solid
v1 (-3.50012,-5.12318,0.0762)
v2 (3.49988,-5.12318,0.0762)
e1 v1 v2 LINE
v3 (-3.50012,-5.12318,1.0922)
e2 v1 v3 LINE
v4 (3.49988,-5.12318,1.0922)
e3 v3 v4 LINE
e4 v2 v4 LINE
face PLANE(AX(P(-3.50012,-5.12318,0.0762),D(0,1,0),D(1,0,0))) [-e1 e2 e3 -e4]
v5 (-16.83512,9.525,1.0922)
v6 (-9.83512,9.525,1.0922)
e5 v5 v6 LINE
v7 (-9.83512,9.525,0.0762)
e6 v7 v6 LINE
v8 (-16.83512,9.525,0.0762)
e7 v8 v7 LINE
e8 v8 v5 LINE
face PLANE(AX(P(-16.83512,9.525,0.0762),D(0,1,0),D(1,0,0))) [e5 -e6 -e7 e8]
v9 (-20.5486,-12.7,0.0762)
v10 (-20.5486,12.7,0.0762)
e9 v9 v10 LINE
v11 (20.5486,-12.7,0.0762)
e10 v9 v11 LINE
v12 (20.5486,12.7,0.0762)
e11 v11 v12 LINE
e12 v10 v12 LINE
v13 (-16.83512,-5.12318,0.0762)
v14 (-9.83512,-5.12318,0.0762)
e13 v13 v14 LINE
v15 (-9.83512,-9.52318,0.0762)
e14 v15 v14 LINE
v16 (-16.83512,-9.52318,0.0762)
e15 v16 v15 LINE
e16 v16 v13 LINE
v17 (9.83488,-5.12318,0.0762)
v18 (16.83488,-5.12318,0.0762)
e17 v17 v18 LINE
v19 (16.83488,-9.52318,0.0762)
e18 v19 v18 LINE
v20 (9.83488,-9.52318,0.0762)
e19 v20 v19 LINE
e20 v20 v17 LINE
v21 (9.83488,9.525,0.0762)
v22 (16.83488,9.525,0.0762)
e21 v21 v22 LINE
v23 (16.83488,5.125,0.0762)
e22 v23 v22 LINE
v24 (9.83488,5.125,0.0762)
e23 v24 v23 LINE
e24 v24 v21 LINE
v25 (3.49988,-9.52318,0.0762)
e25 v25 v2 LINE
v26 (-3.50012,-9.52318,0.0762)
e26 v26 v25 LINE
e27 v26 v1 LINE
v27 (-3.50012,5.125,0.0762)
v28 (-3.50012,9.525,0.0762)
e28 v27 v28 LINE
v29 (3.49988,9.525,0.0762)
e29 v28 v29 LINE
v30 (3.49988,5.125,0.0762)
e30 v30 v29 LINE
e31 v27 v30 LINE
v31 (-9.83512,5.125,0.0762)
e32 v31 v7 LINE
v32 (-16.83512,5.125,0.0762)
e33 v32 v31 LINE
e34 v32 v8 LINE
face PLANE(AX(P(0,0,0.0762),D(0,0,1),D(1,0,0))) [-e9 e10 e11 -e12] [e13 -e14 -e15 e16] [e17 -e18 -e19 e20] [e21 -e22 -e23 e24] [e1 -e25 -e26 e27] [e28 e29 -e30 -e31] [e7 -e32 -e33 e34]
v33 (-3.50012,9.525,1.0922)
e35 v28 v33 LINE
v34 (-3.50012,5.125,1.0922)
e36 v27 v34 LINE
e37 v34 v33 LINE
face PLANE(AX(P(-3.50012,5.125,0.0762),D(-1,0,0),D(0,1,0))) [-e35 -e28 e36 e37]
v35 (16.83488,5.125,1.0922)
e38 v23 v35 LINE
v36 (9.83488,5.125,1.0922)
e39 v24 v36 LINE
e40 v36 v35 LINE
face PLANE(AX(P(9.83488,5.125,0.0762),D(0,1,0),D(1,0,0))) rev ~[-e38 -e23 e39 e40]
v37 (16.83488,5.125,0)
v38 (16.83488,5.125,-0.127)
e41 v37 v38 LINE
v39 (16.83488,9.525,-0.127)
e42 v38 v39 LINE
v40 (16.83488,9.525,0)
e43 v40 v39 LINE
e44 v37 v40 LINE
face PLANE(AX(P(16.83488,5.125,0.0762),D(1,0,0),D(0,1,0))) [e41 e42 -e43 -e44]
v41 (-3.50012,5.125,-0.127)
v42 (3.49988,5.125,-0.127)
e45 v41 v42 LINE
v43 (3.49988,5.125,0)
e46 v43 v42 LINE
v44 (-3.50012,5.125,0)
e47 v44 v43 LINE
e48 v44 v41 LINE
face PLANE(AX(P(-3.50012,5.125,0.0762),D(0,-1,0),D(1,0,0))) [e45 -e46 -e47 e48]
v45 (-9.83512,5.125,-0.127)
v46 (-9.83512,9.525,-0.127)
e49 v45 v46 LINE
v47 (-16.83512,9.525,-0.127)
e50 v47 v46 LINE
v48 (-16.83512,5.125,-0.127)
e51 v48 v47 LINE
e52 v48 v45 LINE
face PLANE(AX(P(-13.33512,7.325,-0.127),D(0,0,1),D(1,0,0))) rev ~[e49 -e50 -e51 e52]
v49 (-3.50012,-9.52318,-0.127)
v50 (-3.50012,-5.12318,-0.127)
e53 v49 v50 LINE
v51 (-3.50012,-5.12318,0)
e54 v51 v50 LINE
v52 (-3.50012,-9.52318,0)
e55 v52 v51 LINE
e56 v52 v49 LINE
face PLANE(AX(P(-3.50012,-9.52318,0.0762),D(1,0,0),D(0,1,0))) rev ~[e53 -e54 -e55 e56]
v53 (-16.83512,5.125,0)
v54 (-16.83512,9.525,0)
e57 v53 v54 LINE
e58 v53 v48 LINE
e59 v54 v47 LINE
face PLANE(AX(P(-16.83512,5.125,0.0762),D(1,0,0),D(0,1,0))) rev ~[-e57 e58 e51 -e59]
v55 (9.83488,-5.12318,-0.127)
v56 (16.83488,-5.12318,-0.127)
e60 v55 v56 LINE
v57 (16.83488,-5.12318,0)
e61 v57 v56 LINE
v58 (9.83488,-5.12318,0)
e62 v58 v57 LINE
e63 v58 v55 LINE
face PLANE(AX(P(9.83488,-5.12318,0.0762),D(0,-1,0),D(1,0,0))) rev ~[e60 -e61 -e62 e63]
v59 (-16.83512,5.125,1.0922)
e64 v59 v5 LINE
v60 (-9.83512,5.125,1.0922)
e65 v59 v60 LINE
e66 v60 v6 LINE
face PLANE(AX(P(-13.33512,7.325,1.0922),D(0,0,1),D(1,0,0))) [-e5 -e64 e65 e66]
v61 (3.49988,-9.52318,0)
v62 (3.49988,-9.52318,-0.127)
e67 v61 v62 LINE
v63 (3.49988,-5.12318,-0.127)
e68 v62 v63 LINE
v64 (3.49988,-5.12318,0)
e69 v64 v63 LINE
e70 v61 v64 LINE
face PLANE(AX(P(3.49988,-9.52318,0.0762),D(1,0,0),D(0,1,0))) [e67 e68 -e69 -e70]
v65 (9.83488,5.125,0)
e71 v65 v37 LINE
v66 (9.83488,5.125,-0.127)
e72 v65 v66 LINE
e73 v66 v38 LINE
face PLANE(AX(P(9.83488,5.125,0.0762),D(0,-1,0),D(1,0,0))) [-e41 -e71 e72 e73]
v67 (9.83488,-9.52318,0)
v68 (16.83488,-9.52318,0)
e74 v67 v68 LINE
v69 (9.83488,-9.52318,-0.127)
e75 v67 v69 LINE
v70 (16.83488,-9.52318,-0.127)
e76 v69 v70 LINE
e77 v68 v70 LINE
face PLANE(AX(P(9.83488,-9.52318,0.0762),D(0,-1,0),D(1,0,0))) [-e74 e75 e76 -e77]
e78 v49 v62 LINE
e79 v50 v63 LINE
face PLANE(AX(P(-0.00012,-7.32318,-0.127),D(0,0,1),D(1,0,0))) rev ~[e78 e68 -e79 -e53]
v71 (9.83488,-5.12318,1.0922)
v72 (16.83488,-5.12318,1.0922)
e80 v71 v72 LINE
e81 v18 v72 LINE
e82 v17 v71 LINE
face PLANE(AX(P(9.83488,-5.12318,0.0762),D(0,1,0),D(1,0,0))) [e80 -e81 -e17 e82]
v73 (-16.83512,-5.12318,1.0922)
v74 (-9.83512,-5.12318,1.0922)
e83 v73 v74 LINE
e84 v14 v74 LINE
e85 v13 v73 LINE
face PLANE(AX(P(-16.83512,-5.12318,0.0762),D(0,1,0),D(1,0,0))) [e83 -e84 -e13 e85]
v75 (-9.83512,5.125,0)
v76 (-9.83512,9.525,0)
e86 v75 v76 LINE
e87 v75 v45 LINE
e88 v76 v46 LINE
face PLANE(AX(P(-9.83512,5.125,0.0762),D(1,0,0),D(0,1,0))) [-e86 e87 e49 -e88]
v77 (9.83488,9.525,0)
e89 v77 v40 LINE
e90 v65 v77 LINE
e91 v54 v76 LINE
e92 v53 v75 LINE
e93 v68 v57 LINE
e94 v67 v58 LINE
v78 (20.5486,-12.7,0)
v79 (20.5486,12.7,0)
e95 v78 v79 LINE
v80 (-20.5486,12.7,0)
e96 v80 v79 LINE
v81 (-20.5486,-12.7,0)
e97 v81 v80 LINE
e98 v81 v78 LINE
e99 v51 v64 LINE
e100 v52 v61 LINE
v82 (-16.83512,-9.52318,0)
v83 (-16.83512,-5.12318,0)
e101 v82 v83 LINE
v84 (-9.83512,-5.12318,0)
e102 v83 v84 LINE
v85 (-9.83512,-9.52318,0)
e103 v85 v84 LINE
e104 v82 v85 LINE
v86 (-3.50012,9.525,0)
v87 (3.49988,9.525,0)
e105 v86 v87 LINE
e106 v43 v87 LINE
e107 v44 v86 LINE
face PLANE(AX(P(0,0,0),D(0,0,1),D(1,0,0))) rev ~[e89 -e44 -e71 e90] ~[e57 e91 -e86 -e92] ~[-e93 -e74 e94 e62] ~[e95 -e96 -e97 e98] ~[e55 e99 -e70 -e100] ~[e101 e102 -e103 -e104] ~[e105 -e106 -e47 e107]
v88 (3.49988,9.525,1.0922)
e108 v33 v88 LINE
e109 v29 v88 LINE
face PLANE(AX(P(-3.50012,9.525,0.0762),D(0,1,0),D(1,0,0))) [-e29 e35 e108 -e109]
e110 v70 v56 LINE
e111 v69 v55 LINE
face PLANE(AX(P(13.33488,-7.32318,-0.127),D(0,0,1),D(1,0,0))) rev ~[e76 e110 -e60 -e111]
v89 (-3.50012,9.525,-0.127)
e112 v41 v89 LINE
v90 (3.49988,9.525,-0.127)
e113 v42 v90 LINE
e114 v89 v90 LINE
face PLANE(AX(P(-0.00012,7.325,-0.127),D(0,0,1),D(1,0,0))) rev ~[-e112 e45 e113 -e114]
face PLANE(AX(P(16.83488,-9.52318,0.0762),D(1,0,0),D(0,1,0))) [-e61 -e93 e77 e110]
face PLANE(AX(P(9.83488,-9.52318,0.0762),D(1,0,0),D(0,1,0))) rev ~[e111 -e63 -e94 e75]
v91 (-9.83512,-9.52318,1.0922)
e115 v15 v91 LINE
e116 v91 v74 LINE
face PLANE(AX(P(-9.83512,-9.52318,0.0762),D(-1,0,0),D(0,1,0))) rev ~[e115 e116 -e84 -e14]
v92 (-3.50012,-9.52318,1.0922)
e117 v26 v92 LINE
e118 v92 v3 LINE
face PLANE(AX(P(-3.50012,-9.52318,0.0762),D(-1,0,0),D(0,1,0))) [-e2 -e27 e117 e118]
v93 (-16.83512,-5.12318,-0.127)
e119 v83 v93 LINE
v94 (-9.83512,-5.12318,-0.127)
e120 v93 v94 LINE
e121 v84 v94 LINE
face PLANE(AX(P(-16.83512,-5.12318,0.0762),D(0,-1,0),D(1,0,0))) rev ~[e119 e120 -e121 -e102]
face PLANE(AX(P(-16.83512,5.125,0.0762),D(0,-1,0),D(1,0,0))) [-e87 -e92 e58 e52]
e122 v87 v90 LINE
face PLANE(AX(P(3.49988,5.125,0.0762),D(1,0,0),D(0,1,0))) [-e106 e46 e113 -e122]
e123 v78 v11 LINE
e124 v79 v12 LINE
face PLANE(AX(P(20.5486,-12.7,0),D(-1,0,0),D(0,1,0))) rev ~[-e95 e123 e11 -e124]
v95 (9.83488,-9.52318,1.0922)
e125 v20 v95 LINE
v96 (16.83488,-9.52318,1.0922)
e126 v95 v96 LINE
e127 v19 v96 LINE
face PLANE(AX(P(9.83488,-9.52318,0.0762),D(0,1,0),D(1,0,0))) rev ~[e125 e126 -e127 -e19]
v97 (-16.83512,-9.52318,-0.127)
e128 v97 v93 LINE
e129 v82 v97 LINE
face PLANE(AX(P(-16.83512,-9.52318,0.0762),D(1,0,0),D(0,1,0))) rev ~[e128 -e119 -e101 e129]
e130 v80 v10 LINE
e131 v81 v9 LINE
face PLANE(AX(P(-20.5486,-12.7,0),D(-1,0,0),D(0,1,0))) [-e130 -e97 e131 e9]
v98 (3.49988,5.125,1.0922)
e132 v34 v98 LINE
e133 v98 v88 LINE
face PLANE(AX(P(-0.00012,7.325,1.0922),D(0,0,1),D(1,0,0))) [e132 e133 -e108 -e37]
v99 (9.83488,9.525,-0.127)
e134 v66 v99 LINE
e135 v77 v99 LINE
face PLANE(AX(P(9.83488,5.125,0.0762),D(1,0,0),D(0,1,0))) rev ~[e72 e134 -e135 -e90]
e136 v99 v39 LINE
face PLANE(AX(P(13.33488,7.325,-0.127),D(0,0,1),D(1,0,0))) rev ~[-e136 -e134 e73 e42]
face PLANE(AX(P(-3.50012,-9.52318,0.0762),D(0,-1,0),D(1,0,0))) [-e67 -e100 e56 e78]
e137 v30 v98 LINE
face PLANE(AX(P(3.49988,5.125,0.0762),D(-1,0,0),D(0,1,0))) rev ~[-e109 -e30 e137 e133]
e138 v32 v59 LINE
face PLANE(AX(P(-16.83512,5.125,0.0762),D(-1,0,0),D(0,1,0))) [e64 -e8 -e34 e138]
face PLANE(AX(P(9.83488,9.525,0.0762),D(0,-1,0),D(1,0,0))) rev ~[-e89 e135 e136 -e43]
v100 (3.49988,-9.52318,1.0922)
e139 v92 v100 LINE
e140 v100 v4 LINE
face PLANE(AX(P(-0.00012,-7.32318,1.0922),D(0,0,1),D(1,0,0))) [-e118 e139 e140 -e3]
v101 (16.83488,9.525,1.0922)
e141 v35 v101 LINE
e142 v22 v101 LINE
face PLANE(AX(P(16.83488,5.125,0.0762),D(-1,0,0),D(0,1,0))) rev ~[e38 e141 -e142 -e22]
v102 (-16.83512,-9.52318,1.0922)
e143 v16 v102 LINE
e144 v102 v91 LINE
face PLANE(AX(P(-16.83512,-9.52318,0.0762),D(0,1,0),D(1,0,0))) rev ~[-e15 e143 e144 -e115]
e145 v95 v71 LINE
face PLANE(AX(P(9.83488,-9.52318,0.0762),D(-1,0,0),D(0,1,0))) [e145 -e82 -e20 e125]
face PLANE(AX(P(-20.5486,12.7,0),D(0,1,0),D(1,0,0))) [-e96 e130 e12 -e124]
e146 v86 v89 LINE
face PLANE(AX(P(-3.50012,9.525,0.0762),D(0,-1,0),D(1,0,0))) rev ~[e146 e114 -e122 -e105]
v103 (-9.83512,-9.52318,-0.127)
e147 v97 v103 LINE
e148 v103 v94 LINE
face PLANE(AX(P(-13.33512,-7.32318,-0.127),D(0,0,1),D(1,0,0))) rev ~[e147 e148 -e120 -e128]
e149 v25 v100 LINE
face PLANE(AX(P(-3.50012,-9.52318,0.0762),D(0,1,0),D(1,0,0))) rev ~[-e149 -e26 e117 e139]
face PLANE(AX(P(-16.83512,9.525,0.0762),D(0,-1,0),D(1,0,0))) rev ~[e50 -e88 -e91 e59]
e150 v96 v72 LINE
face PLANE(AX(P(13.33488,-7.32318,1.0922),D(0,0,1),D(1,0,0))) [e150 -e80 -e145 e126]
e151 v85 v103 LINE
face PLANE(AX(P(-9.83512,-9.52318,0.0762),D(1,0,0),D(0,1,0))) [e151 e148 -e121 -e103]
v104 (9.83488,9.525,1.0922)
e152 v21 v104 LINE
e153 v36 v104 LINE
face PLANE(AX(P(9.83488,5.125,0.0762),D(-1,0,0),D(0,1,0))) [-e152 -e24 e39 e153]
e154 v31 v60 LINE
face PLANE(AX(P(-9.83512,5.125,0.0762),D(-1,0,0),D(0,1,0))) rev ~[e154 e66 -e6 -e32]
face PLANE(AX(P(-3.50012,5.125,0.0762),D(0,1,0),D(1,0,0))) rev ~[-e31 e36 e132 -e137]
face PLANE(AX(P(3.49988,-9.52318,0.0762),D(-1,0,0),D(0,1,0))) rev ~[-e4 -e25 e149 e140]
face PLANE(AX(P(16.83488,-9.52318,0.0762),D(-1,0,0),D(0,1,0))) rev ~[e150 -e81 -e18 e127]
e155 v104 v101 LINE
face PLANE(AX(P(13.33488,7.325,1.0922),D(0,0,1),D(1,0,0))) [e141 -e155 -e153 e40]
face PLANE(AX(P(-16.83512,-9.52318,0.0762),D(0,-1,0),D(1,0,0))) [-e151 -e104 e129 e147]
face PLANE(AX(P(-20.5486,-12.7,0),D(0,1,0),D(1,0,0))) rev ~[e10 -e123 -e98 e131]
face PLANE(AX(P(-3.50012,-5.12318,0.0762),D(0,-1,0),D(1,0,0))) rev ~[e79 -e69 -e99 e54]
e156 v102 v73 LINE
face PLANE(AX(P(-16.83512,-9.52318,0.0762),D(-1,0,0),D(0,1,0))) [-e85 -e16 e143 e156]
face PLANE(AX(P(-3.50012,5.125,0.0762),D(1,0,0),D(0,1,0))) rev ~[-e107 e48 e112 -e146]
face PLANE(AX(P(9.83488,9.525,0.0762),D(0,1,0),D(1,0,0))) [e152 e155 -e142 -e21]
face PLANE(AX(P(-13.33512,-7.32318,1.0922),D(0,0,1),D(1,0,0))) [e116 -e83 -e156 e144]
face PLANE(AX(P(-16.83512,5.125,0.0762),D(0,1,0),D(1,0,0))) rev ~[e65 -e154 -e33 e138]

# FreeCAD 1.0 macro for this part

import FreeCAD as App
import Part
import Sketcher

V = App.Vector
Q = App.Units.Quantity


def add_polygon(sketch, points):
    """Adds a closed chain of lines whose ends are joined by coincident constraints."""
    first, n = sketch.GeometryCount, len(points)
    for a, b in zip(points, points[1:] + points[:1]):
        sketch.addGeometry(Part.LineSegment(App.Vector(*a, 0), App.Vector(*b, 0)), False)
    for i in range(n):
        sketch.addConstraint(Sketcher.Constraint("Coincident", first + i, 2, first + (i + 1) % n, 1))

doc = App.newDocument("Part")
body = doc.addObject("PartDesign::Body", "Body")

sketch1 = doc.addObject("Sketcher::SketchObject", "Sketch")
body.addObject(sketch1)
sketch1.AttachmentSupport = (doc.XY_Plane, [""])
sketch1.MapMode = "FlatFace"
add_polygon(sketch1, [(-21, 13), (-21, -13), (21, -13), (21, 13)])
sketch1.addConstraint([
    Sketcher.Constraint("Vertical", 0),
    Sketcher.Constraint("Horizontal", 1),
    Sketcher.Constraint("Vertical", 2),
    Sketcher.Constraint("Horizontal", 3),
    Sketcher.Constraint("Symmetric", 0, 2, 2, 2, -1, 1),
    Sketcher.Constraint("DistanceY", 0, 2, 0, 1, Q("1 in")),
    Sketcher.Constraint("DistanceX", 1, 1, 1, 2, Q("1.618 in")),
])
pad1 = doc.addObject("PartDesign::Pad", "Pad")
body.addObject(pad1)
pad1.Profile = sketch1
pad1.Length = Q("0.003 in")

sketch2 = doc.addObject("Sketcher::SketchObject", "Sketch001")
body.addObject(sketch2)
sketch2.AttachmentSupport = (doc.XY_Plane, [""])
sketch2.MapMode = "FlatFace"
sketch2.AttachmentOffset = App.Placement(V(0, 0, 0.003 * 25.4), App.Rotation())
add_polygon(sketch2, [(-16.8, 9.5), (-16.8, 5.1), (-9.8, 5.1), (-9.8, 9.5)])
add_polygon(sketch2, [(-16.8, -5.1), (-16.8, -9.5), (-9.8, -9.5), (-9.8, -5.1)])
add_polygon(sketch2, [(-3.5, 9.5), (-3.5, 5.1), (3.5, 5.1), (3.5, 9.5)])
add_polygon(sketch2, [(-3.5, -5.1), (-3.5, -9.5), (3.5, -9.5), (3.5, -5.1)])
add_polygon(sketch2, [(9.8, 9.5), (9.8, 5.1), (16.8, 5.1), (16.8, 9.5)])
add_polygon(sketch2, [(9.8, -5.1), (9.8, -9.5), (16.8, -9.5), (16.8, -5.1)])
sketch2.addConstraint([
    Sketcher.Constraint("Vertical", 0),
    Sketcher.Constraint("Horizontal", 1),
    Sketcher.Constraint("Vertical", 2),
    Sketcher.Constraint("Horizontal", 3),
    Sketcher.Constraint("Vertical", 4),
    Sketcher.Constraint("Horizontal", 5),
    Sketcher.Constraint("Vertical", 6),
    Sketcher.Constraint("Horizontal", 7),
    Sketcher.Constraint("Vertical", 8),
    Sketcher.Constraint("Horizontal", 9),
    Sketcher.Constraint("Vertical", 10),
    Sketcher.Constraint("Horizontal", 11),
    Sketcher.Constraint("Vertical", 12),
    Sketcher.Constraint("Horizontal", 13),
    Sketcher.Constraint("Vertical", 14),
    Sketcher.Constraint("Horizontal", 15),
    Sketcher.Constraint("Vertical", 16),
    Sketcher.Constraint("Horizontal", 17),
    Sketcher.Constraint("Vertical", 18),
    Sketcher.Constraint("Horizontal", 19),
    Sketcher.Constraint("Vertical", 20),
    Sketcher.Constraint("Horizontal", 21),
    Sketcher.Constraint("Vertical", 22),
    Sketcher.Constraint("Horizontal", 23),
    Sketcher.Constraint("Horizontal", 1, 2, 8, 2),
    Sketcher.Constraint("Horizontal", 3, 2, 10, 2),
    Sketcher.Constraint("Horizontal", 5, 2, 12, 2),
    Sketcher.Constraint("Horizontal", 7, 2, 14, 2),
    Sketcher.Constraint("Horizontal", 9, 2, 16, 2),
    Sketcher.Constraint("Horizontal", 11, 2, 18, 2),
    Sketcher.Constraint("Horizontal", 13, 2, 20, 2),
    Sketcher.Constraint("Horizontal", 15, 2, 22, 2),
    Sketcher.Constraint("Vertical", 3, 2, 4, 2),
    Sketcher.Constraint("Vertical", 2, 2, 5, 2),
    Sketcher.Constraint("Vertical", 11, 2, 12, 2),
    Sketcher.Constraint("Vertical", 10, 2, 13, 2),
    Sketcher.Constraint("Vertical", 19, 2, 20, 2),
    Sketcher.Constraint("Vertical", 18, 2, 21, 2),
    Sketcher.Constraint("Equal", 7, 9),
    Sketcher.Constraint("Equal", 15, 17),
    Sketcher.Constraint("Equal", 2, 4),
    Sketcher.Constraint("DistanceY", -1, 1, 2, 2, Q("0.375 in")),
    Sketcher.Constraint("DistanceX", 0, 2, 8, 2, Q("0.525 in")),
    Sketcher.Constraint("DistanceX", 8, 2, 16, 2, Q("0.525 in")),
    Sketcher.Constraint("DistanceX", 1, 1, 1, 2, 7.0),
    Sketcher.Constraint("DistanceY", 0, 2, 0, 1, 4.4),
    Sketcher.Constraint("DistanceX", 0, 2, -1, 1, Q("0.6628 in")),
    Sketcher.Constraint("DistanceY", 6, 2, -1, 1, Q("0.2017 in")),
])
pad2 = doc.addObject("PartDesign::Pad", "Pad001")
body.addObject(pad2)
pad2.Profile = sketch2
pad2.Length = Q("0.04 in")

sketch3 = doc.addObject("Sketcher::SketchObject", "Sketch002")
body.addObject(sketch3)
sketch3.AttachmentSupport = (doc.XY_Plane, [""])
sketch3.MapMode = "FlatFace"
sketch3.AttachmentOffset = App.Placement(V(0, 0, 0.003 * 25.4), App.Rotation())
add_polygon(sketch3, [(-16.8, 9.5), (-16.8, 5.1), (-9.8, 5.1), (-9.8, 9.5)])
add_polygon(sketch3, [(-16.8, -5.1), (-16.8, -9.5), (-9.8, -9.5), (-9.8, -5.1)])
add_polygon(sketch3, [(-3.5, 9.5), (-3.5, 5.1), (3.5, 5.1), (3.5, 9.5)])
add_polygon(sketch3, [(-3.5, -5.1), (-3.5, -9.5), (3.5, -9.5), (3.5, -5.1)])
add_polygon(sketch3, [(9.8, 9.5), (9.8, 5.1), (16.8, 5.1), (16.8, 9.5)])
add_polygon(sketch3, [(9.8, -5.1), (9.8, -9.5), (16.8, -9.5), (16.8, -5.1)])
sketch3.addConstraint([
    Sketcher.Constraint("Vertical", 0),
    Sketcher.Constraint("Horizontal", 1),
    Sketcher.Constraint("Vertical", 2),
    Sketcher.Constraint("Horizontal", 3),
    Sketcher.Constraint("Vertical", 4),
    Sketcher.Constraint("Horizontal", 5),
    Sketcher.Constraint("Vertical", 6),
    Sketcher.Constraint("Horizontal", 7),
    Sketcher.Constraint("Vertical", 8),
    Sketcher.Constraint("Horizontal", 9),
    Sketcher.Constraint("Vertical", 10),
    Sketcher.Constraint("Horizontal", 11),
    Sketcher.Constraint("Vertical", 12),
    Sketcher.Constraint("Horizontal", 13),
    Sketcher.Constraint("Vertical", 14),
    Sketcher.Constraint("Horizontal", 15),
    Sketcher.Constraint("Vertical", 16),
    Sketcher.Constraint("Horizontal", 17),
    Sketcher.Constraint("Vertical", 18),
    Sketcher.Constraint("Horizontal", 19),
    Sketcher.Constraint("Vertical", 20),
    Sketcher.Constraint("Horizontal", 21),
    Sketcher.Constraint("Vertical", 22),
    Sketcher.Constraint("Horizontal", 23),
    Sketcher.Constraint("Horizontal", 1, 2, 8, 2),
    Sketcher.Constraint("Horizontal", 3, 2, 10, 2),
    Sketcher.Constraint("Horizontal", 5, 2, 12, 2),
    Sketcher.Constraint("Horizontal", 7, 2, 14, 2),
    Sketcher.Constraint("Horizontal", 9, 2, 16, 2),
    Sketcher.Constraint("Horizontal", 11, 2, 18, 2),
    Sketcher.Constraint("Horizontal", 13, 2, 20, 2),
    Sketcher.Constraint("Horizontal", 15, 2, 22, 2),
    Sketcher.Constraint("Vertical", 3, 2, 4, 2),
    Sketcher.Constraint("Vertical", 2, 2, 5, 2),
    Sketcher.Constraint("Vertical", 11, 2, 12, 2),
    Sketcher.Constraint("Vertical", 10, 2, 13, 2),
    Sketcher.Constraint("Vertical", 19, 2, 20, 2),
    Sketcher.Constraint("Vertical", 18, 2, 21, 2),
    Sketcher.Constraint("Equal", 7, 9),
    Sketcher.Constraint("Equal", 15, 17),
    Sketcher.Constraint("Equal", 2, 4),
    Sketcher.Constraint("DistanceY", -1, 1, 2, 2, Q("0.375 in")),
    Sketcher.Constraint("DistanceX", 0, 2, 8, 2, Q("0.525 in")),
    Sketcher.Constraint("DistanceX", 8, 2, 16, 2, Q("0.525 in")),
    Sketcher.Constraint("DistanceX", 1, 1, 1, 2, 7.0),
    Sketcher.Constraint("DistanceY", 0, 2, 0, 1, 4.4),
    Sketcher.Constraint("DistanceX", 0, 2, -1, 1, Q("0.6628 in")),
    Sketcher.Constraint("DistanceY", 6, 2, -1, 1, Q("0.2017 in")),
])
pad3 = doc.addObject("PartDesign::Pad", "Pad002")
body.addObject(pad3)
pad3.Profile = sketch3
pad3.Length = Q("0.008 in")
pad3.Reversed = True

doc.recompute()
